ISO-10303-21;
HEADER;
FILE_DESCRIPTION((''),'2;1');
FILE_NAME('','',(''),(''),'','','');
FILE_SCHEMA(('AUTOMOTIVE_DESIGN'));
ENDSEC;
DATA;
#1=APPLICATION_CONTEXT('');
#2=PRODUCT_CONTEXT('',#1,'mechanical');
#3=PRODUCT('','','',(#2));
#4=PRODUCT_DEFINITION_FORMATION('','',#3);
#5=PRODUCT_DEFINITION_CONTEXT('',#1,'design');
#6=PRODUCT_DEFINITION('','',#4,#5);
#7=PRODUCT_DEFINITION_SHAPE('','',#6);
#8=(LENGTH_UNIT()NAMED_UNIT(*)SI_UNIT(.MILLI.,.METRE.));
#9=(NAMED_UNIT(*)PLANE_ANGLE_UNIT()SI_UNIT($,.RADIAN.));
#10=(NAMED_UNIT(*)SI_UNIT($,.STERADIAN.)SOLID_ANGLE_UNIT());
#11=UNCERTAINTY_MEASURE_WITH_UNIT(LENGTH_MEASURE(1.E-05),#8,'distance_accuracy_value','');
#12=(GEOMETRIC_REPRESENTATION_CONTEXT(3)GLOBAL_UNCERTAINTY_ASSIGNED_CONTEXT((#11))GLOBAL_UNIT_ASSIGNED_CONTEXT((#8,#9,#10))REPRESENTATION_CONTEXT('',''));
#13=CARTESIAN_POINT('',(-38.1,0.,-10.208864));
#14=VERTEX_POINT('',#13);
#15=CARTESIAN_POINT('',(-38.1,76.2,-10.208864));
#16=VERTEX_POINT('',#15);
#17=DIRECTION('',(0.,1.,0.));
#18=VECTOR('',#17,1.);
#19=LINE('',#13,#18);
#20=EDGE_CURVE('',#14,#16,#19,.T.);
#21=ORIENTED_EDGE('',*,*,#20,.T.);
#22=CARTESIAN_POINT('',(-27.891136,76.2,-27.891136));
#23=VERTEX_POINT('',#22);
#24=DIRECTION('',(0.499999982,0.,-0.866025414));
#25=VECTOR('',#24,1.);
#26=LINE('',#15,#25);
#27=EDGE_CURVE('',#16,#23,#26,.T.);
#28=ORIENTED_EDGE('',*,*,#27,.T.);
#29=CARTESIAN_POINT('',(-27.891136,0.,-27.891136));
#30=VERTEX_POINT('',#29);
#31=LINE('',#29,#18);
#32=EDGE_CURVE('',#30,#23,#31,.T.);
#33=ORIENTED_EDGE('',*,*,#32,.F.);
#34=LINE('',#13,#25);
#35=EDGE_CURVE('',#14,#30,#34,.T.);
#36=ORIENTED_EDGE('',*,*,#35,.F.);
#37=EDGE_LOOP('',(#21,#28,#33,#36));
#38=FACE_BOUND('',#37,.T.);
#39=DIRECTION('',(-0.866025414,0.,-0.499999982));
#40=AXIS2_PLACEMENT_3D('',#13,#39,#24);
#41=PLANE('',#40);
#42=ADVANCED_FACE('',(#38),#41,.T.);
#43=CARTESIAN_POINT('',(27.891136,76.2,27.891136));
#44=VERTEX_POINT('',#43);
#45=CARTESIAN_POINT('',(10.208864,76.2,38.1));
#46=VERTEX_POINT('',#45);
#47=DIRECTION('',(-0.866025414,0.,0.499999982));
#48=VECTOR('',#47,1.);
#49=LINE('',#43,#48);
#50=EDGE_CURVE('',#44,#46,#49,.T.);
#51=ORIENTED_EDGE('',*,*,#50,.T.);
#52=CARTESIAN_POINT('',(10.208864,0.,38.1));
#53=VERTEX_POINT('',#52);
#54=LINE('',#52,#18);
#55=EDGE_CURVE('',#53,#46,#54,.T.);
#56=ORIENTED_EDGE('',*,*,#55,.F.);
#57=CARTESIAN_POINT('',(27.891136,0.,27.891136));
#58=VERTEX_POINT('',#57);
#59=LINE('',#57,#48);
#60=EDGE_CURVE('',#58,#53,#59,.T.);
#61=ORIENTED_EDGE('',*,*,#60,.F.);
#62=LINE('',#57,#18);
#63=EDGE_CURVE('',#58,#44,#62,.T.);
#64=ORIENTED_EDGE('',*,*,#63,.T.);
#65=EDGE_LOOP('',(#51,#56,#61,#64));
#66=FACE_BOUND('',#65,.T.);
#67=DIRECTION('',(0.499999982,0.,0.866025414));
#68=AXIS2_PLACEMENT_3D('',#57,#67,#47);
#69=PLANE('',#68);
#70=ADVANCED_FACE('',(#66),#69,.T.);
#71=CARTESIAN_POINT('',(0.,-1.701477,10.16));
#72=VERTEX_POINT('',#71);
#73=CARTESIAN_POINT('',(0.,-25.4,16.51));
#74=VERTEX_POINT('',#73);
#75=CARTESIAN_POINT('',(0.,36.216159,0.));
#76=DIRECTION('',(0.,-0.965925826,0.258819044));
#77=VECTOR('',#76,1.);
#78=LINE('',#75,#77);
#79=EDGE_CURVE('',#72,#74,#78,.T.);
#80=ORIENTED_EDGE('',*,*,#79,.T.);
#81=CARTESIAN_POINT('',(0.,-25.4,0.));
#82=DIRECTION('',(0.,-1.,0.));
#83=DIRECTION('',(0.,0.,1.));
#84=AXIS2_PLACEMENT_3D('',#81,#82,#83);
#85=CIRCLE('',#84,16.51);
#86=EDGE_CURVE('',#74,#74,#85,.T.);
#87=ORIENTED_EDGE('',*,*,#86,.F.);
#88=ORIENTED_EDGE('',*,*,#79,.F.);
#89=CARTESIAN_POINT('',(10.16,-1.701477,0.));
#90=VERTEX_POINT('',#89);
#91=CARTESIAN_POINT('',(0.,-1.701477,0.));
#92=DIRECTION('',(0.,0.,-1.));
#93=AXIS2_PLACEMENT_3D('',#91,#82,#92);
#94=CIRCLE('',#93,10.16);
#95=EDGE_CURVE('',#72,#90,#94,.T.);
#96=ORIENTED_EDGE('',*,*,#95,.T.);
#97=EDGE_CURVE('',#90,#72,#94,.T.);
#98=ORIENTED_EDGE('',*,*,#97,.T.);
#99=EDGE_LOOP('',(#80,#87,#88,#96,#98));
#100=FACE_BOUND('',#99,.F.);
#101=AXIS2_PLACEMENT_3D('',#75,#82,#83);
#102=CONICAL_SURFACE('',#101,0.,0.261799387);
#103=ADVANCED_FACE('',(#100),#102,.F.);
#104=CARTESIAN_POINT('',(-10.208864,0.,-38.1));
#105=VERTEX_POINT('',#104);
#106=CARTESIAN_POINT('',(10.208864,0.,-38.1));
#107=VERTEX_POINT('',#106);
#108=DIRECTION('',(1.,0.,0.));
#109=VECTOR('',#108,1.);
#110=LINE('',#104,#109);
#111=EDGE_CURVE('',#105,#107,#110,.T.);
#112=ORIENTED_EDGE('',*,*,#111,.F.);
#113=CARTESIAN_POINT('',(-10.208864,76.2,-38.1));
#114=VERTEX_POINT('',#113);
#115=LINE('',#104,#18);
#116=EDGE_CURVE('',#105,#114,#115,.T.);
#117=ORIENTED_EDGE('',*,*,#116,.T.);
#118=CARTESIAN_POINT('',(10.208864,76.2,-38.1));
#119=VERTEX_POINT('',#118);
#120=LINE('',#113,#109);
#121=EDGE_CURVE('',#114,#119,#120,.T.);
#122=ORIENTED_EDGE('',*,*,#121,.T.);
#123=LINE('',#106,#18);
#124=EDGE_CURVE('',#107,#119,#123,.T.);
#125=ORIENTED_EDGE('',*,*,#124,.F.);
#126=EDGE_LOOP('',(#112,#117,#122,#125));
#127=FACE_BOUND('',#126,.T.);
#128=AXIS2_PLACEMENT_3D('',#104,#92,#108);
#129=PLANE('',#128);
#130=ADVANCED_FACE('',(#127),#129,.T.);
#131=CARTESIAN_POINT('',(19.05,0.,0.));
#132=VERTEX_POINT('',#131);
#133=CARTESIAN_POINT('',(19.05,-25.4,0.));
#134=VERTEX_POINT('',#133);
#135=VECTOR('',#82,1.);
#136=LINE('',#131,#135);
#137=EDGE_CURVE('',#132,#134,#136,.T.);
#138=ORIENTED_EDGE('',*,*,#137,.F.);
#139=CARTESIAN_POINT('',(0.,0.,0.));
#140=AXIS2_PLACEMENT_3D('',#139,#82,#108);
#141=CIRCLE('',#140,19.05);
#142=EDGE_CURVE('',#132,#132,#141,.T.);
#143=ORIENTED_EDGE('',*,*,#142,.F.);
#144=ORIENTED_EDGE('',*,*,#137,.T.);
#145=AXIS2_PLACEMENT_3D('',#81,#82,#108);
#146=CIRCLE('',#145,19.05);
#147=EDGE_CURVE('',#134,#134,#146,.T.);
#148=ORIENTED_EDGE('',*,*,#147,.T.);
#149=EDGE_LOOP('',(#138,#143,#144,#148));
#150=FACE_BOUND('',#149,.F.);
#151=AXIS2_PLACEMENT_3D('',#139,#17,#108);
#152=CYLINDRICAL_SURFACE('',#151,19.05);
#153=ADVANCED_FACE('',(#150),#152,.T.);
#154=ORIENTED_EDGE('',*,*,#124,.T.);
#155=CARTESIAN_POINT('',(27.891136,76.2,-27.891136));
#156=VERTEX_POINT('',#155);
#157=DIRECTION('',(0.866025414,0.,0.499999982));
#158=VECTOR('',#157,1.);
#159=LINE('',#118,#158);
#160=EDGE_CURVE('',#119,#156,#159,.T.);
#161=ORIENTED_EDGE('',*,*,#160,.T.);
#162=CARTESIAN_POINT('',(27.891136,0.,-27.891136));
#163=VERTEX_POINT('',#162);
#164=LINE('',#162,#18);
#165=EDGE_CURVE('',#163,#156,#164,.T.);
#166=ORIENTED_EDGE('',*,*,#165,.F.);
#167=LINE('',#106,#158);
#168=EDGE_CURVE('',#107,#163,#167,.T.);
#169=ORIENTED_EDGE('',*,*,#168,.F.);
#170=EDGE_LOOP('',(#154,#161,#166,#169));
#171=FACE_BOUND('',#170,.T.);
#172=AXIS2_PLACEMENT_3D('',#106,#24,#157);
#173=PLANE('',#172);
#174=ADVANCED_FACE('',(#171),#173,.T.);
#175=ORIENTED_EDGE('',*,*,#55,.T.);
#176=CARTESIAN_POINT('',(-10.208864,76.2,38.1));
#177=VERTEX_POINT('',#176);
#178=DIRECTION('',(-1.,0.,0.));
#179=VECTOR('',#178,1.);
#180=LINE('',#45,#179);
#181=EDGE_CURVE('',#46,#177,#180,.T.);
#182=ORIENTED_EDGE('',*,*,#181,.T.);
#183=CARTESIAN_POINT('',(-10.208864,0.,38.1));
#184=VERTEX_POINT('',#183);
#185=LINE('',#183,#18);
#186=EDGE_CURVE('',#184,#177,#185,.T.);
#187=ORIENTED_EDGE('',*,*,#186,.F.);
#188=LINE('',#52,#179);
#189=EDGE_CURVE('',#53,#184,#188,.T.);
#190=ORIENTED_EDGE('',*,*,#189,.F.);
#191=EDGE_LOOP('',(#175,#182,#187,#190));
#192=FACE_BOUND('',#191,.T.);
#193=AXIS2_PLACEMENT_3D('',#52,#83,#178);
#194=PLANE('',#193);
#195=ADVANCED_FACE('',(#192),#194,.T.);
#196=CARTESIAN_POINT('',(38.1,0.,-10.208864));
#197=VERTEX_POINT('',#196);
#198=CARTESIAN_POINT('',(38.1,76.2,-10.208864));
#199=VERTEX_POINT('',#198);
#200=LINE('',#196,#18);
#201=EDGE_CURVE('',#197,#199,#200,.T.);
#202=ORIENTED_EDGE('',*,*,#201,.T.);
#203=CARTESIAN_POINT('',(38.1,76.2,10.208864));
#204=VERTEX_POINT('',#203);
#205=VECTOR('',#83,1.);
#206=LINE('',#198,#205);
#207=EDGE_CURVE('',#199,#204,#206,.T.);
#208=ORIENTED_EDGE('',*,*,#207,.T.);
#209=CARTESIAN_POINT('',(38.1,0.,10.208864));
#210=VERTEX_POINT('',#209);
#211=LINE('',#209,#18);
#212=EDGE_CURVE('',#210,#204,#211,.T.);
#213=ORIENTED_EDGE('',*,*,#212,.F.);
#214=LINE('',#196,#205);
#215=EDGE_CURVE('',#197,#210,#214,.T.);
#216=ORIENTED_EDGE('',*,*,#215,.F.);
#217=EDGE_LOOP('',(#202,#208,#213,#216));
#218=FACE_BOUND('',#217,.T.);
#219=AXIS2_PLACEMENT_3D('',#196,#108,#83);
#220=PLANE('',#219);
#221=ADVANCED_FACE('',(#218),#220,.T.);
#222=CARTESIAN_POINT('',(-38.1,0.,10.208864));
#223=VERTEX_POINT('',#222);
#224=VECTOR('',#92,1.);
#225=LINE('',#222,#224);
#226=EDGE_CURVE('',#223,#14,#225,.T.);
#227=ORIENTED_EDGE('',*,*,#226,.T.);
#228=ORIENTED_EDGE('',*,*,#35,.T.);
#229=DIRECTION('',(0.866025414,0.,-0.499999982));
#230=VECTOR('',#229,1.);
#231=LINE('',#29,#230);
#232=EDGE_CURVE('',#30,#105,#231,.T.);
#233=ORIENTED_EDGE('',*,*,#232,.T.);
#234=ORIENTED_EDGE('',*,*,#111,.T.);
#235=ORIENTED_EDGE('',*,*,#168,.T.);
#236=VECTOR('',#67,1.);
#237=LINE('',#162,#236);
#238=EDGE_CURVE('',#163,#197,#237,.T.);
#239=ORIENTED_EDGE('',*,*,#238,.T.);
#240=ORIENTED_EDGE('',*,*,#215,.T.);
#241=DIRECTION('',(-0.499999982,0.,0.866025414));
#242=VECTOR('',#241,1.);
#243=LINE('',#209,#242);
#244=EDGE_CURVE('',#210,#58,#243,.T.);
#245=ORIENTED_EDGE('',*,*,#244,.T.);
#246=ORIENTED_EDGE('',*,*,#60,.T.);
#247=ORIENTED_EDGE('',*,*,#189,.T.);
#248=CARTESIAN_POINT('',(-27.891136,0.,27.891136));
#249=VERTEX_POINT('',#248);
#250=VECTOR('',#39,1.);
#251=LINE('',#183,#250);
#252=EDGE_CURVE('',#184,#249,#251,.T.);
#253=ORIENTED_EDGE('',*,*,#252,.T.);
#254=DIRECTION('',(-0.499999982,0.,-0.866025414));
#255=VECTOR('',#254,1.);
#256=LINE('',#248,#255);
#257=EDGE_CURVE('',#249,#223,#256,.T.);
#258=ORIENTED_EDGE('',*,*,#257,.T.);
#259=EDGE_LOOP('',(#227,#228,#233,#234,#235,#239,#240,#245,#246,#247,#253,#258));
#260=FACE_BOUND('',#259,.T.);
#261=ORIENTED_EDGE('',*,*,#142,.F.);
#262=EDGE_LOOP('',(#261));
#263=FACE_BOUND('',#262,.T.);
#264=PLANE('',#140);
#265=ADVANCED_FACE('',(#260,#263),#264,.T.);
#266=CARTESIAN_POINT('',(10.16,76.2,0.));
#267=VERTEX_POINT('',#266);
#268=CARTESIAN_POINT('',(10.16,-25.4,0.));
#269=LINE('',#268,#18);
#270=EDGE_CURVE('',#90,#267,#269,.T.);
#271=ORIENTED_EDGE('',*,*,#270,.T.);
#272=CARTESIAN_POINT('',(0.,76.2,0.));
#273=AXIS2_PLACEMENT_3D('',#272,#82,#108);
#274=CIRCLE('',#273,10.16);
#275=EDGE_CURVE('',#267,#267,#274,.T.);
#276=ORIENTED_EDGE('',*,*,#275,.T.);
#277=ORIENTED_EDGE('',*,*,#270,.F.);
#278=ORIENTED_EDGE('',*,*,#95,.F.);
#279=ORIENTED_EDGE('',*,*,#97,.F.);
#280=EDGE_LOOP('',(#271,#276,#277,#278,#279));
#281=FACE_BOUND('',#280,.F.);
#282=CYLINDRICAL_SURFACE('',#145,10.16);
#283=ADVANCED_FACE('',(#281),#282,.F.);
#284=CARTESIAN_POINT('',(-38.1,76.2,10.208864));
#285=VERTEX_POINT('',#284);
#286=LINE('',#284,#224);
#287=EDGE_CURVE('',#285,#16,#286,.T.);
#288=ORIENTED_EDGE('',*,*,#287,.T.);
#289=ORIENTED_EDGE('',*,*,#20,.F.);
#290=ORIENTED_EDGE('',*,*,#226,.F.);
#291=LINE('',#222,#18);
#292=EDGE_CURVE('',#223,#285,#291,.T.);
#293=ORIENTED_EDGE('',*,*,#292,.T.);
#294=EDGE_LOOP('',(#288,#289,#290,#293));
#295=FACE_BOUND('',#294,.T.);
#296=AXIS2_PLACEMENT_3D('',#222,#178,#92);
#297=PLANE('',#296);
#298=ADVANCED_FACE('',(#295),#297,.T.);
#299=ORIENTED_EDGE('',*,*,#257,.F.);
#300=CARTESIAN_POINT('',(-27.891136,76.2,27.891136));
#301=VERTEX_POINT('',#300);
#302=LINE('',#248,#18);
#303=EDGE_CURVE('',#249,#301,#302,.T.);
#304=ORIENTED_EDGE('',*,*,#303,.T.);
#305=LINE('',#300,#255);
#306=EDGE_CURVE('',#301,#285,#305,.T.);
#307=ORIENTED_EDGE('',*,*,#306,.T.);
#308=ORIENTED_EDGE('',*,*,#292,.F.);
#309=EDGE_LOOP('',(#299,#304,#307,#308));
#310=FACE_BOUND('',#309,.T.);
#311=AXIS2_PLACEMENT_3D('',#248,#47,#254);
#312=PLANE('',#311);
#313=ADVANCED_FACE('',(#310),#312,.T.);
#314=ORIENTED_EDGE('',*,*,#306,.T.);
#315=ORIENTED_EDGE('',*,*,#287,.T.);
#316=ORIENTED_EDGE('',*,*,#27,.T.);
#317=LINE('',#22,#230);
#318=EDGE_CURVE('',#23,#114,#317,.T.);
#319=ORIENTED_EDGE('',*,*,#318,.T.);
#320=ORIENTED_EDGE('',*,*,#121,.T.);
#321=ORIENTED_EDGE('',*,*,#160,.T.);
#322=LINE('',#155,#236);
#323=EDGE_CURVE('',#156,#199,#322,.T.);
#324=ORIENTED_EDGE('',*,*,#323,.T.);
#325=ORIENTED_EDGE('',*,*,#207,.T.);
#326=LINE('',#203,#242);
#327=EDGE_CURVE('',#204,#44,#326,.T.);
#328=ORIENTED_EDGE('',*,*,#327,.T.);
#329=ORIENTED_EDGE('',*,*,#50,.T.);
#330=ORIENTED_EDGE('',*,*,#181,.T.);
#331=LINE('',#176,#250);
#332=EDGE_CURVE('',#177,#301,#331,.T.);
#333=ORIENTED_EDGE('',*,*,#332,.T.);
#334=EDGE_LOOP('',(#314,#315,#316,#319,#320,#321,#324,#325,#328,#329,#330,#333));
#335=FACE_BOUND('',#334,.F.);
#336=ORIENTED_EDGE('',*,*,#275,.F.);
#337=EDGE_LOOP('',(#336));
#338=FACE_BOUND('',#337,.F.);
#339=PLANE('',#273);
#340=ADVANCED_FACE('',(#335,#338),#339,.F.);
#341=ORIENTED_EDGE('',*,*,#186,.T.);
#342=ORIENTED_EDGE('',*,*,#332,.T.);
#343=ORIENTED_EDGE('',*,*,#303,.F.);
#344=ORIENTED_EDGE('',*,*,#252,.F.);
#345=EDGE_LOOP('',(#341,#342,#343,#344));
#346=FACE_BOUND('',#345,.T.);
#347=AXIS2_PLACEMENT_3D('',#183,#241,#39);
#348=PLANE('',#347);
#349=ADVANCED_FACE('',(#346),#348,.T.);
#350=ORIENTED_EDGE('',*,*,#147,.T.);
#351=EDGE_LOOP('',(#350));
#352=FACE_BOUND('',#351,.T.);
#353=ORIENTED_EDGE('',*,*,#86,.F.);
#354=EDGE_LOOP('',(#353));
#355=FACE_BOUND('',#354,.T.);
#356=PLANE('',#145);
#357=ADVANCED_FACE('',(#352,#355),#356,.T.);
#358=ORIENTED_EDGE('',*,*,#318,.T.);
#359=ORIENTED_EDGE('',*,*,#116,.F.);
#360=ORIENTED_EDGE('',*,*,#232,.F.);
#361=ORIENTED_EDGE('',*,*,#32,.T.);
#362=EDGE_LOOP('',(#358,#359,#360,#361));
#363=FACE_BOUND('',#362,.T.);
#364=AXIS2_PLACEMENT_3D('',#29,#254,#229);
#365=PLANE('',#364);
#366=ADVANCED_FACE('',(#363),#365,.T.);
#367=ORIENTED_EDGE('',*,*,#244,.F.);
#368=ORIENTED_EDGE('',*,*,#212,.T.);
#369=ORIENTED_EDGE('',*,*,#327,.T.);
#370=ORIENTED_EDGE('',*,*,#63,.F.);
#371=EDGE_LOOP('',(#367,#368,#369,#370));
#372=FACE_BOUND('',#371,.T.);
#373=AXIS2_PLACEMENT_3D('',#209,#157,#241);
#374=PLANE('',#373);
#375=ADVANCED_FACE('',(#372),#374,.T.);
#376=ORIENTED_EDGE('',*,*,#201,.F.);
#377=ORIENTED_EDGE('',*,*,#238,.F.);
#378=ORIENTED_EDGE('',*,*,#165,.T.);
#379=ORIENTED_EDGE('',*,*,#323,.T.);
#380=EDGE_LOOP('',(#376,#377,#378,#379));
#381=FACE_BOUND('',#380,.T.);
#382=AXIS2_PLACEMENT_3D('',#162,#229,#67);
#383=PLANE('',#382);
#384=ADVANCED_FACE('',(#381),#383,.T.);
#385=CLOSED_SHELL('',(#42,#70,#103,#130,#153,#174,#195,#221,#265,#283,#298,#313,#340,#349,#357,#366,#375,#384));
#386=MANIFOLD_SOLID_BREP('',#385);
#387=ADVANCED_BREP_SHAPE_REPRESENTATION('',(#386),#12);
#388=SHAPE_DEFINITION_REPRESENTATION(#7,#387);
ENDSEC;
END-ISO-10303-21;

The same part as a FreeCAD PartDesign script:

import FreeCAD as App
import Part
import Sketcher

V = App.Vector
Q = App.Units.Quantity

doc = App.newDocument("Part")
params = doc.addObject("Spreadsheet::Sheet", "Params")
for row, (alias, value) in enumerate([
    ("pad1_length", "3 in"),
    ("sketch2_diameter", "1.5 in"),
    ("pad2_length", "1 in"),
    ("sketch3_diameter", "0.8 in"),
    ("pocket1_length", "4 in"),
    ("sketch4_height", "0.65 in"),
    ("groove_angle", "360 deg"),
], start=1):
    params.set(f"A{row}", alias)
    params.set(f"B{row}", "=" + value)
    params.setAlias(f"B{row}", alias)

body = doc.addObject("PartDesign::Body", "Body")

sketch1 = doc.addObject("Sketcher::SketchObject", "Sketch")
body.addObject(sketch1)
sketch1.AttachmentSupport = (doc.XZ_Plane, [""])
sketch1.MapMode = "FlatFace"
sketch1.addGeometry(Part.LineSegment(V(-38, 10, 0), V(-38, -10, 0)), False)
sketch1.addGeometry(Part.LineSegment(V(-38, -10, 0), V(-28, -28, 0)), False)
sketch1.addGeometry(Part.LineSegment(V(-28, -28, 0), V(-10, -38, 0)), False)
sketch1.addGeometry(Part.LineSegment(V(-10, -38, 0), V(10, -38, 0)), False)
sketch1.addGeometry(Part.LineSegment(V(10, -38, 0), V(28, -28, 0)), False)
sketch1.addGeometry(Part.LineSegment(V(28, -28, 0), V(38, -10, 0)), False)
sketch1.addGeometry(Part.LineSegment(V(38, -10, 0), V(38, 10, 0)), False)
sketch1.addGeometry(Part.LineSegment(V(38, 10, 0), V(28, 28, 0)), False)
sketch1.addGeometry(Part.LineSegment(V(28, 28, 0), V(10, 38, 0)), False)
sketch1.addGeometry(Part.LineSegment(V(10, 38, 0), V(-10, 38, 0)), False)
sketch1.addGeometry(Part.LineSegment(V(-10, 38, 0), V(-28, 28, 0)), False)
sketch1.addGeometry(Part.LineSegment(V(-28, 28, 0), V(-38, 10, 0)), False)
sketch1.addConstraint(Sketcher.Constraint("Coincident", 0, 2, 1, 1))
sketch1.addConstraint(Sketcher.Constraint("Coincident", 1, 2, 2, 1))
sketch1.addConstraint(Sketcher.Constraint("Coincident", 2, 2, 3, 1))
sketch1.addConstraint(Sketcher.Constraint("Coincident", 3, 2, 4, 1))
sketch1.addConstraint(Sketcher.Constraint("Coincident", 4, 2, 5, 1))
sketch1.addConstraint(Sketcher.Constraint("Coincident", 5, 2, 6, 1))
sketch1.addConstraint(Sketcher.Constraint("Coincident", 6, 2, 7, 1))
sketch1.addConstraint(Sketcher.Constraint("Coincident", 7, 2, 8, 1))
sketch1.addConstraint(Sketcher.Constraint("Coincident", 8, 2, 9, 1))
sketch1.addConstraint(Sketcher.Constraint("Coincident", 9, 2, 10, 1))
sketch1.addConstraint(Sketcher.Constraint("Coincident", 10, 2, 11, 1))
sketch1.addConstraint(Sketcher.Constraint("Coincident", 11, 2, 0, 1))
sketch1.addConstraint(Sketcher.Constraint("Vertical", 0))
sketch1.addConstraint(Sketcher.Constraint("Horizontal", 3))
sketch1.addConstraint(Sketcher.Constraint("Vertical", 6))
sketch1.addConstraint(Sketcher.Constraint("Horizontal", 9))
sketch1.addConstraint(Sketcher.Constraint("Symmetric", 0, 2, 6, 2, -1, 1))
sketch1.addConstraint(Sketcher.Constraint("Symmetric", 1, 2, 7, 2, -1, 1))
sketch1.addConstraint(Sketcher.Constraint("Symmetric", 2, 2, 8, 2, -1, 1))
sketch1.addConstraint(Sketcher.Constraint("Symmetric", 4, 2, 10, 2, -1, 1))
sketch1.addConstraint(Sketcher.Constraint("Symmetric", 1, 2, 4, 2, -2))
sketch1.addConstraint(Sketcher.Constraint("Perpendicular", 1, 4))
sketch1.addConstraint(Sketcher.Constraint("Perpendicular", 2, 5))
sketch1.addConstraint(Sketcher.Constraint("Perpendicular", 7, 10))
sketch1.addConstraint(Sketcher.Constraint("Perpendicular", 8, 11))
sketch1.addConstraint(Sketcher.Constraint("Horizontal", 0, 2, 5, 2))
sketch1.addConstraint(Sketcher.Constraint("Equal", 9, 0))
sketch1.addConstraint(Sketcher.Constraint("Equal", 1, 2))
sketch1.addConstraint(Sketcher.Constraint("Angle", 1, Q("-60.000001 deg")))
sketch1.addConstraint(Sketcher.Constraint("DistanceX", 0, 2, 5, 2, Q("3 in")))
sketch1.addConstraint(Sketcher.Constraint("DistanceX", 1, 2, 3, 2, Q("1.5 in")))
pad1 = doc.addObject("PartDesign::Pad", "Pad")
body.addObject(pad1)
pad1.Profile = sketch1
pad1.setExpression("Length", "Params.pad1_length")
pad1.Reversed = True

sketch2 = doc.addObject("Sketcher::SketchObject", "Sketch001")
body.addObject(sketch2)
sketch2.AttachmentSupport = (doc.XZ_Plane, [""])
sketch2.MapMode = "FlatFace"
sketch2.addGeometry(Part.Circle(V(0, 0, 0), V(0, 0, 1), 19), False)
sketch2.addConstraint(Sketcher.Constraint("Coincident", 0, 3, -1, 1))
sketch2.addConstraint(Sketcher.Constraint("Diameter", 0, Q("1.5 in")))
sketch2.setExpression("Constraints[1]", "Params.sketch2_diameter")
pad2 = doc.addObject("PartDesign::Pad", "Pad001")
body.addObject(pad2)
pad2.Profile = sketch2
pad2.setExpression("Length", "Params.pad2_length")

sketch3 = doc.addObject("Sketcher::SketchObject", "Sketch002")
body.addObject(sketch3)
sketch3.AttachmentSupport = (doc.XZ_Plane, [""])
sketch3.MapMode = "FlatFace"
sketch3.AttachmentOffset = App.Placement(V(0, 0, 1 * 25.4), App.Rotation())
sketch3.addGeometry(Part.Circle(V(0, 0, 0), V(0, 0, 1), 10), False)
sketch3.addConstraint(Sketcher.Constraint("Coincident", 0, 3, -1, 1))
sketch3.addConstraint(Sketcher.Constraint("Diameter", 0, Q("0.8 in")))
sketch3.setExpression("Constraints[1]", "Params.sketch3_diameter")
pocket1 = doc.addObject("PartDesign::Pocket", "Pocket")
body.addObject(pocket1)
pocket1.Profile = sketch3
pocket1.setExpression("Length", "Params.pocket1_length")

sketch4 = doc.addObject("Sketcher::SketchObject", "Sketch003")
body.addObject(sketch4)
sketch4.AttachmentSupport = (doc.YZ_Plane, [""])
sketch4.MapMode = "FlatFace"
sketch4.addGeometry(Part.LineSegment(V(-25, 17, 0), V(-25, 0, 0)), False)
sketch4.addGeometry(Part.LineSegment(V(-25, 0, 0), V(36, 0, 0)), False)
sketch4.addGeometry(Part.LineSegment(V(36, 0, 0), V(-25, 17, 0)), False)
sketch4.addConstraint(Sketcher.Constraint("Coincident", 0, 2, 1, 1))
sketch4.addConstraint(Sketcher.Constraint("Coincident", 1, 2, 2, 1))
sketch4.addConstraint(Sketcher.Constraint("Coincident", 2, 2, 0, 1))
sketch4.addConstraint(Sketcher.Constraint("Vertical", 0))
sketch4.addConstraint(Sketcher.Constraint("Horizontal", 1))
sketch4.addConstraint(Sketcher.Constraint("PointOnObject", 0, 2, -1))
sketch4.addConstraint(Sketcher.Constraint("DistanceX", 0, 2, -1, 1, Q("1 in")))
sketch4.addConstraint(Sketcher.Constraint("Angle", 2, Q("165 deg")))
sketch4.addConstraint(Sketcher.Constraint("DistanceY", 0, 2, 0, 1, Q("0.65 in")))
sketch4.setExpression("Constraints[8]", "Params.sketch4_height")
groove = doc.addObject("PartDesign::Groove", "Groove")
body.addObject(groove)
groove.Profile = sketch4
groove.ReferenceAxis = (sketch4, ["H_Axis"])
groove.setExpression("Angle", "Params.groove_angle")

doc.recompute()
